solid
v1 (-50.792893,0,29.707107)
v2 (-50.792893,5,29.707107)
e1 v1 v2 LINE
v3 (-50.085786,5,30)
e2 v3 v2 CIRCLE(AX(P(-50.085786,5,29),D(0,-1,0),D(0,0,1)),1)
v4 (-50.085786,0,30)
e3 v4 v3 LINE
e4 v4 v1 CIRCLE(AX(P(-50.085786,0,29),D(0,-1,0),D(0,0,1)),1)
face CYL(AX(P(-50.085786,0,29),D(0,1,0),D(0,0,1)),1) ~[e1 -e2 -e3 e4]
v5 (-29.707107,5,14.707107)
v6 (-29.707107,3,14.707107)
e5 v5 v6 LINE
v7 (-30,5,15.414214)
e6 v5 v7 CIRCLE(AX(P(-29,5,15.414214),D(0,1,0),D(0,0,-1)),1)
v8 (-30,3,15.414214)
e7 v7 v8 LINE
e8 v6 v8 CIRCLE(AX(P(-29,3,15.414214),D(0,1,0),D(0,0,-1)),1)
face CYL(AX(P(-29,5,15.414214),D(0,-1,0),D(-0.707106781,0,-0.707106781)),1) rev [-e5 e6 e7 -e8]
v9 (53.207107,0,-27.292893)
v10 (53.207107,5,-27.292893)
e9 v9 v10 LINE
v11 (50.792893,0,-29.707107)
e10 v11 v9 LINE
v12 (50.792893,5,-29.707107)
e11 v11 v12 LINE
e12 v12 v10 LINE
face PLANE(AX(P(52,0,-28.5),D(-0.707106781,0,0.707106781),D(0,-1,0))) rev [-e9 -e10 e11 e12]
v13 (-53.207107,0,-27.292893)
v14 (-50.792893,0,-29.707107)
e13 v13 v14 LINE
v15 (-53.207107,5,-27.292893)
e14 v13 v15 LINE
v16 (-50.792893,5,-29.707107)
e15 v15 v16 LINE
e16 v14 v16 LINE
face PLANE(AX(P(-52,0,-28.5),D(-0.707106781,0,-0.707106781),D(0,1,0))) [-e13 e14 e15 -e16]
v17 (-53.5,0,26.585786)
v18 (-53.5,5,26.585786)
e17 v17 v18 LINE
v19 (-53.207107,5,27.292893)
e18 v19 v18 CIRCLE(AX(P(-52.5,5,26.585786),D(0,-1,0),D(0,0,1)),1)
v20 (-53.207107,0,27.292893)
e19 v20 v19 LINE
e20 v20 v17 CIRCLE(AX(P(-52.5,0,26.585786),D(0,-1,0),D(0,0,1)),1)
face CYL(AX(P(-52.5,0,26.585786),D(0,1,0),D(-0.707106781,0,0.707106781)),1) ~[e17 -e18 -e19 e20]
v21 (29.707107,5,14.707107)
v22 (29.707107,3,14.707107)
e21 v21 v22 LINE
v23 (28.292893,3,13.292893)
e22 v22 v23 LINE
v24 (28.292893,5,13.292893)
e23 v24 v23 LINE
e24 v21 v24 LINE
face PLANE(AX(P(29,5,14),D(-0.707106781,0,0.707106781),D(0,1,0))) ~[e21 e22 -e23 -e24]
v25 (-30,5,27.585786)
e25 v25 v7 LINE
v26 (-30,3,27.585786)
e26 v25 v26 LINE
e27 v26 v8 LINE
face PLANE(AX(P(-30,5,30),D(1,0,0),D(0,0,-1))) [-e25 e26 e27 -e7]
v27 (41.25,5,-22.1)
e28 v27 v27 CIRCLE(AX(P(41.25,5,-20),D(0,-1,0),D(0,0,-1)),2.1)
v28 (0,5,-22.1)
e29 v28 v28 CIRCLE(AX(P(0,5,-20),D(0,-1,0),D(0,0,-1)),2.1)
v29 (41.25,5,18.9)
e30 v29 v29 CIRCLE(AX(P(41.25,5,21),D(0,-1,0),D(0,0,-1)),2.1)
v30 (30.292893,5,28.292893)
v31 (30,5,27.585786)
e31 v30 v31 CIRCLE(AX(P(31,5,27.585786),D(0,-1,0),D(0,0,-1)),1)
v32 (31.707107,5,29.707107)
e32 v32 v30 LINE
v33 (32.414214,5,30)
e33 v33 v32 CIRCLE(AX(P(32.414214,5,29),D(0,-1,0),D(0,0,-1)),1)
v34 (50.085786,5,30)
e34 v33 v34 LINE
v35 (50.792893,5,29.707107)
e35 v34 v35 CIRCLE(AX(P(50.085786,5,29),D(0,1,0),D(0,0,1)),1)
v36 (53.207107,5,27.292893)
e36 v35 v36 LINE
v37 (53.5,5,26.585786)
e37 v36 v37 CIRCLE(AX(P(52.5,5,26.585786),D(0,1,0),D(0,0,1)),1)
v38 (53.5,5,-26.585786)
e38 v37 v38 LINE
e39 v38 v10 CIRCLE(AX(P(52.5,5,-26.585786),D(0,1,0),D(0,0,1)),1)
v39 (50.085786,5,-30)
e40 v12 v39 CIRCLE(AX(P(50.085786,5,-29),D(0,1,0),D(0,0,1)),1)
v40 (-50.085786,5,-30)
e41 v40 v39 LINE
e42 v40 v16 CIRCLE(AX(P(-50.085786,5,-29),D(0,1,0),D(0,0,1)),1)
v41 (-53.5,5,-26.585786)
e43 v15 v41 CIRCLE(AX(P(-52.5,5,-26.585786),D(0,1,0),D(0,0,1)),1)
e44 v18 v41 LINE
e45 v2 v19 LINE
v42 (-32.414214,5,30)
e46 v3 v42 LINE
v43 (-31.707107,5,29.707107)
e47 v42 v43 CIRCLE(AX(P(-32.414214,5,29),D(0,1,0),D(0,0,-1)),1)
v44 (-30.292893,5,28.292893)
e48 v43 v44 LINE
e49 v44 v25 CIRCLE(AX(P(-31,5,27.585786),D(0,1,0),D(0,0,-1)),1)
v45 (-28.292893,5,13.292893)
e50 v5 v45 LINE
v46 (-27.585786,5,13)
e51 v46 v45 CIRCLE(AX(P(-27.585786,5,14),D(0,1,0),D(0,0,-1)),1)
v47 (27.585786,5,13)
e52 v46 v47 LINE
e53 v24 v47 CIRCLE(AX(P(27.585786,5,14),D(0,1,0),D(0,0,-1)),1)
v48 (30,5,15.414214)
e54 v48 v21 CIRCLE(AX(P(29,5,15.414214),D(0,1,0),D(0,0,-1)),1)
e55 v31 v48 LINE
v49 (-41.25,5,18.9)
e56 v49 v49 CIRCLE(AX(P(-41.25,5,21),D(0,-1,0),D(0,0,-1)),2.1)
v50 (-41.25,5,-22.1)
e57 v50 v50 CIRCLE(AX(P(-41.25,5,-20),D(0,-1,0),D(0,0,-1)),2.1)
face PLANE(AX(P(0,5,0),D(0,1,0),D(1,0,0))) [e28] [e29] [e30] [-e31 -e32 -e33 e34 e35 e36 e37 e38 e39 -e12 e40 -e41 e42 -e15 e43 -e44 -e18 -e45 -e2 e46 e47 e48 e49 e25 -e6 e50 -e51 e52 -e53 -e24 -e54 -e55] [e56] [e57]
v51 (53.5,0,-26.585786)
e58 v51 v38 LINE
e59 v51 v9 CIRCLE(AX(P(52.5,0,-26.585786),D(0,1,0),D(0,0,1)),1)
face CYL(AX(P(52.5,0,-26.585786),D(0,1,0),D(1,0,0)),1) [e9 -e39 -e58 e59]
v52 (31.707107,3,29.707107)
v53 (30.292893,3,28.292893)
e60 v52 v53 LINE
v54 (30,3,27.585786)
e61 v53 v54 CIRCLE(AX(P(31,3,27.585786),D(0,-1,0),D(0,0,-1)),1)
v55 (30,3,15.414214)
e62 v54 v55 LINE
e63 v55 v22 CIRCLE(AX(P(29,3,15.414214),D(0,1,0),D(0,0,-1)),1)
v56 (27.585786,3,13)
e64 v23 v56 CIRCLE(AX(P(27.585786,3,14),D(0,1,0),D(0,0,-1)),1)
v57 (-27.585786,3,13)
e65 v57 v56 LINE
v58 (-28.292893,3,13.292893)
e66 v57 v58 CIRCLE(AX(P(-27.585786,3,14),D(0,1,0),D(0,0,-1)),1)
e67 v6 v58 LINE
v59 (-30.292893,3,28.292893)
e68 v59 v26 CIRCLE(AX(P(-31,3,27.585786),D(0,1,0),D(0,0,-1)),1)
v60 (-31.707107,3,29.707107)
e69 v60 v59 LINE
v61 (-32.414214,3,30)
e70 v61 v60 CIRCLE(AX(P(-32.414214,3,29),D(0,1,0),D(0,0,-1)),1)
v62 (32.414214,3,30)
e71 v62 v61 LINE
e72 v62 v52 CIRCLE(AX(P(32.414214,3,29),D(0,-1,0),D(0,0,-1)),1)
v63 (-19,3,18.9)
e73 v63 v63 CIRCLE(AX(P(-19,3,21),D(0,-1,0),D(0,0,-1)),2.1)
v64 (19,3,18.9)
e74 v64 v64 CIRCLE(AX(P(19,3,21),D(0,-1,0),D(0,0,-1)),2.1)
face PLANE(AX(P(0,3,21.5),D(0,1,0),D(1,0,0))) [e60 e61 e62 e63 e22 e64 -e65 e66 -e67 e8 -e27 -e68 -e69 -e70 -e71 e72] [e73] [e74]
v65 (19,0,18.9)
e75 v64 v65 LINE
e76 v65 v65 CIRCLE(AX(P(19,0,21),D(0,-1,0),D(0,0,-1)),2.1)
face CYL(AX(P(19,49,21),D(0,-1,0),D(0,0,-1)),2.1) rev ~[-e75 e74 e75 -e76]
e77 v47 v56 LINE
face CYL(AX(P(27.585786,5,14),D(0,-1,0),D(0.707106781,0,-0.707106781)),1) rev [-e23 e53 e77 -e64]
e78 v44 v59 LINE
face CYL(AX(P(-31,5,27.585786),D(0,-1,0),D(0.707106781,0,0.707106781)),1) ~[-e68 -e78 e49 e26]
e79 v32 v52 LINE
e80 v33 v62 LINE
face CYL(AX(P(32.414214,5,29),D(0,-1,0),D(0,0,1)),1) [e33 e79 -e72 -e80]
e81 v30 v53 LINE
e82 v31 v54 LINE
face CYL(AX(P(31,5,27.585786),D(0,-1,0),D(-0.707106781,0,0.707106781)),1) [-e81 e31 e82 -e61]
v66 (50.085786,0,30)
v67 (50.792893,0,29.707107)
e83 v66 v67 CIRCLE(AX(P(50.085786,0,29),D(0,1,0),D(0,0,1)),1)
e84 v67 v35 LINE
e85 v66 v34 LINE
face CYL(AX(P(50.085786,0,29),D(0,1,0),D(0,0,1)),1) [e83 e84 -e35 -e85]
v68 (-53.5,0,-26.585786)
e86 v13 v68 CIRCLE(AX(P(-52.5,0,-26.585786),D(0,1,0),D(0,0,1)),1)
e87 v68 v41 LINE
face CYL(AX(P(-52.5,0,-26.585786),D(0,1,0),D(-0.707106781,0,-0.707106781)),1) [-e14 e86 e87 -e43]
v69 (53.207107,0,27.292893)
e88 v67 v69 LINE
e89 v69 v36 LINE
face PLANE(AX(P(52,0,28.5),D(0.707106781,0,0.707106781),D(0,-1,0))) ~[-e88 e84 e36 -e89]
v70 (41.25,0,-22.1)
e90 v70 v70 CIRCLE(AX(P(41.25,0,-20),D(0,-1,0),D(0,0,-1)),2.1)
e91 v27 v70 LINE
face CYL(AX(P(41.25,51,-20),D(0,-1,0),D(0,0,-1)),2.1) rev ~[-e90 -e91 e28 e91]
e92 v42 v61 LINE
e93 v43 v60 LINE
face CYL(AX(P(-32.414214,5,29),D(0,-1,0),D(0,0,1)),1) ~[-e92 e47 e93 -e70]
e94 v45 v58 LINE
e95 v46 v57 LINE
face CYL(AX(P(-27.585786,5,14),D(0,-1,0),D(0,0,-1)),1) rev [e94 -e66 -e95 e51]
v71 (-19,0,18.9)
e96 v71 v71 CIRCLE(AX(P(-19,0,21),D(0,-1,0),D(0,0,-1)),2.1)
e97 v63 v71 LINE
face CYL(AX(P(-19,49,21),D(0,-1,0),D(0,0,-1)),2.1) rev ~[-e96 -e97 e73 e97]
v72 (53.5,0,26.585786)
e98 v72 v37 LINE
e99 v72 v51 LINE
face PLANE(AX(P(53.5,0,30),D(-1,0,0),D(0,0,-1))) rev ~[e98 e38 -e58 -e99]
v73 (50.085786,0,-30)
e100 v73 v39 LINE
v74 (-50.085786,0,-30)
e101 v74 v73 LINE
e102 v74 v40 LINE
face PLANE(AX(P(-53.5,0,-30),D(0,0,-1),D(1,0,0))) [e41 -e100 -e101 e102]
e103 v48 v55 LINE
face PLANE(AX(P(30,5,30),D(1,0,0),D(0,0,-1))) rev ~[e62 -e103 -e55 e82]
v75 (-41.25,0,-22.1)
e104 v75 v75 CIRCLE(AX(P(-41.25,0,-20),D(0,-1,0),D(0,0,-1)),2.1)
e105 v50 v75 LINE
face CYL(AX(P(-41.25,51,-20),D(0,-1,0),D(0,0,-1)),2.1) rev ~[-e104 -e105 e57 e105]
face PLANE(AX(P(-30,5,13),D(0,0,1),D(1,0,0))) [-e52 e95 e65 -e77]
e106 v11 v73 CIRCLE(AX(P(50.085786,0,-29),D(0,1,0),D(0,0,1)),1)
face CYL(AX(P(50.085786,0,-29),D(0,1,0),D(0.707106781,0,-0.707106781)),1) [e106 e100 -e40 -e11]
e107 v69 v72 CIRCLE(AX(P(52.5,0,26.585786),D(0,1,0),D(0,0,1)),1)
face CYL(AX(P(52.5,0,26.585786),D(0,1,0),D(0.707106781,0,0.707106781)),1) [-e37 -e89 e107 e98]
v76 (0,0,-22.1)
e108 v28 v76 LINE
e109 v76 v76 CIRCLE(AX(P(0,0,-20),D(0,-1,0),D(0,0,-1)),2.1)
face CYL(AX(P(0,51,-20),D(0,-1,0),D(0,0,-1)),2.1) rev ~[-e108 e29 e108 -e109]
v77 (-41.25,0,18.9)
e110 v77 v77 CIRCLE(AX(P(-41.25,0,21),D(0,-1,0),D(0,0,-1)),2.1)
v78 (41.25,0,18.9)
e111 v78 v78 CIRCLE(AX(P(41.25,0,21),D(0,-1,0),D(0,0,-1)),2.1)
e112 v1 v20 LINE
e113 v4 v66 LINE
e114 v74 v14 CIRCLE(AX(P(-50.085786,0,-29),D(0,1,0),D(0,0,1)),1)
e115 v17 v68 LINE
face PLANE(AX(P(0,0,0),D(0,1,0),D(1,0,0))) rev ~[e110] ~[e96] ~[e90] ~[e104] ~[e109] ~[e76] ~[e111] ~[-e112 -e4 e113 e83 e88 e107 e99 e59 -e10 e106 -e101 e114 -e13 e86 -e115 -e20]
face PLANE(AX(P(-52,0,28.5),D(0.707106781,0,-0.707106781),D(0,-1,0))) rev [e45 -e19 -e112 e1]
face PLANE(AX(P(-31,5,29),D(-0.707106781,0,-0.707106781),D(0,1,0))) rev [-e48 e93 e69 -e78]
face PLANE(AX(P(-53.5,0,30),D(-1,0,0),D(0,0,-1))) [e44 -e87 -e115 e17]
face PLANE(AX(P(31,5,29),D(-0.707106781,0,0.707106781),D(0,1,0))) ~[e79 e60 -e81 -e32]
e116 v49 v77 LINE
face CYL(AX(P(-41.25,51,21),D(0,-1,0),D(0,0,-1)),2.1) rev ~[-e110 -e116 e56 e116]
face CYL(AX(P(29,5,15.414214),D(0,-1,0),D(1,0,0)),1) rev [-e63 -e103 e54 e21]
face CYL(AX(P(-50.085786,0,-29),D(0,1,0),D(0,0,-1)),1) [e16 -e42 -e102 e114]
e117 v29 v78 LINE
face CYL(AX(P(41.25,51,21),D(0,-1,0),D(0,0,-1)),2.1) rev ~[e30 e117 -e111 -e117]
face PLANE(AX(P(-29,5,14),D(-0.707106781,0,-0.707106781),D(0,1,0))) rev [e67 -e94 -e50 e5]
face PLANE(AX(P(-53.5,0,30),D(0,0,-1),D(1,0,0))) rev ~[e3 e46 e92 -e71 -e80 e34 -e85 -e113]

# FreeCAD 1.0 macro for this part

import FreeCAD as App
import Part
import Sketcher

V = App.Vector


def edges_at(feature, points):
    """Names of the edges that pass closest to the given points."""
    edges = feature.Shape.Edges
    near = lambda p: min(range(len(edges)), key=lambda i: edges[i].distToShape(Part.Vertex(*p))[0])
    return sorted({f"Edge{near(p) + 1}" for p in points})


def add_polygon(sketch, points):
    """Adds a closed chain of lines whose ends are joined by coincident constraints."""
    first, n = sketch.GeometryCount, len(points)
    for a, b in zip(points, points[1:] + points[:1]):
        sketch.addGeometry(Part.LineSegment(App.Vector(*a, 0), App.Vector(*b, 0)), False)
    for i in range(n):
        sketch.addConstraint(Sketcher.Constraint("Coincident", first + i, 2, first + (i + 1) % n, 1))

doc = App.newDocument("Part")
body = doc.addObject("PartDesign::Body", "Body")

# Sketch on XZ plane
sketch1 = doc.addObject("Sketcher::SketchObject", "Sketch")
body.addObject(sketch1)
sketch1.AttachmentSupport = (doc.XZ_Plane, [""])
sketch1.MapMode = "FlatFace"
add_polygon(sketch1, [(-54, -30), (-54, 30), (54, 30), (54, -30)])  # lines 0-3
sketch1.addConstraint([
    Sketcher.Constraint("Vertical", 0),
    Sketcher.Constraint("Horizontal", 1),
    Sketcher.Constraint("Vertical", 2),
    Sketcher.Constraint("Horizontal", 3),
    Sketcher.Constraint("Symmetric", 0, 2, 2, 2, -1, 1),
    Sketcher.Constraint("DistanceX", 1, 1, 1, 2, 107.0),
    Sketcher.Constraint("DistanceY", 0, 1, 0, 2, 60.0),
])
pad1 = doc.addObject("PartDesign::Pad", "Pad")
body.addObject(pad1)
pad1.Profile = sketch1
pad1.Length = 5
pad1.Reversed = True

# Sketch on XZ plane
sketch2 = doc.addObject("Sketcher::SketchObject", "Sketch001")
body.addObject(sketch2)
sketch2.AttachmentSupport = (doc.XZ_Plane, [""])
sketch2.MapMode = "FlatFace"
sketch2.AttachmentOffset = App.Placement(V(0, 0, -5), App.Rotation())
add_polygon(sketch2, [(-30, 13), (-30, 30), (30, 30), (30, 13)])  # lines 0-3
sketch2.addConstraint([
    Sketcher.Constraint("Vertical", 0),
    Sketcher.Constraint("Horizontal", 1),
    Sketcher.Constraint("Vertical", 2),
    Sketcher.Constraint("Horizontal", 3),
    Sketcher.Constraint("DistanceX", 1, 1, 1, 2, 60.0),
    Sketcher.Constraint("DistanceY", 0, 1, 0, 2, 17.0),
    Sketcher.Constraint("DistanceX", 0, 2, -1, 1, 30.0),
    Sketcher.Constraint("DistanceY", -1, 1, 0, 2, 30.0),
])
pocket1 = doc.addObject("PartDesign::Pocket", "Pocket")
body.addObject(pocket1)
pocket1.Profile = sketch2
pocket1.Length = 2
pocket1.Reversed = True
doc.recompute()

chamfer = doc.addObject("PartDesign::Chamfer", "Chamfer")
body.addObject(chamfer)
chamfer.Base = (pocket1, edges_at(pocket1, [
    (30, 4, 13),
    (30, 4, 30),
    (-30, 4, 30),
    (-30, 4, 13),
]))
chamfer.Size = 2
doc.recompute()

chamfer2 = doc.addObject("PartDesign::Chamfer", "Chamfer001")
body.addObject(chamfer2)
chamfer2.Base = (chamfer, edges_at(chamfer, [
    (53.5, 2.5, 30),
    (-53.5, 2.5, 30),
    (-53.5, 2.5, -30),
    (53.5, 2.5, -30),
]))
chamfer2.Size = 3
doc.recompute()

fillet = doc.addObject("PartDesign::Fillet", "Fillet")
body.addObject(fillet)
fillet.Base = (chamfer2, edges_at(chamfer2, [
    (30, 4, 15),
    (30, 4, 28),
    (-32, 4, 30),
    (32, 4, 30),
    (-28, 4, 13),
    (28, 4, 13),
    (-30, 4, 15),
    (-30, 4, 28),
    (-53.5, 2.5, 27),
    (-53.5, 2.5, -27),
    (50.5, 2.5, -30),
    (-50.5, 2.5, -30),
    (50.5, 2.5, 30),
    (-50.5, 2.5, 30),
    (53.5, 2.5, 27),
    (53.5, 2.5, -27),
]))
fillet.Radius = 1

# Sketch on XZ plane
sketch3 = doc.addObject("Sketcher::SketchObject", "Sketch002")
body.addObject(sketch3)
sketch3.AttachmentSupport = (doc.XZ_Plane, [""])
sketch3.MapMode = "FlatFace"
sketch3.AttachmentOffset = App.Placement(V(0, 0, -5), App.Rotation())
sketch3.addGeometry([
    Part.Circle(V(-41.2, 21, 0), V(0, 0, 1), 2.1),  # 0
    Part.Circle(V(-41.2, -20, 0), V(0, 0, 1), 2.1),  # 1
    Part.Circle(V(0, -20, 0), V(0, 0, 1), 2.1),  # 2
    Part.Circle(V(41.2, -20, 0), V(0, 0, 1), 2.1),  # 3
    Part.Circle(V(41.2, 21, 0), V(0, 0, 1), 2.1),  # 4
], False)
sketch3.addConstraint([
    Sketcher.Constraint("Equal", 0, 1),
    Sketcher.Constraint("Equal", 1, 2),
    Sketcher.Constraint("Equal", 2, 3),
    Sketcher.Constraint("Equal", 3, 4),
    Sketcher.Constraint("Symmetric", 1, 3, 3, 3, -2),
    Sketcher.Constraint("Symmetric", 0, 3, 4, 3, -2),
    Sketcher.Constraint("PointOnObject", 2, 3, -2),
    Sketcher.Constraint("Horizontal", 1, 3, 2, 3),
    Sketcher.Constraint("Vertical", 0, 3, 1, 3),
    Sketcher.Constraint("Diameter", 0, 4.2),
    Sketcher.Constraint("DistanceY", -1, 1, 0, 3, 21.0),
    Sketcher.Constraint("DistanceY", 1, 3, -1, 1, 20.0),
    Sketcher.Constraint("DistanceX", 1, 3, 3, 3, 82.5),
])
doc.recompute()
hole = doc.addObject("PartDesign::Hole", "Hole")
body.addObject(hole)
hole.Profile = sketch3
hole.ThreadType = "None"
hole.Diameter = 4.2
hole.DepthType = "Dimension"
hole.Depth = 46
hole.DrillPoint = "Angled"
hole.DrillPointAngle = 118
hole.Reversed = True

# Sketch on XZ plane
sketch4 = doc.addObject("Sketcher::SketchObject", "Sketch003")
body.addObject(sketch4)
sketch4.AttachmentSupport = (doc.XZ_Plane, [""])
sketch4.MapMode = "FlatFace"
sketch4.AttachmentOffset = App.Placement(V(0, 0, -3), App.Rotation())
sketch4.addGeometry([
    Part.Circle(V(-19, 21, 0), V(0, 0, 1), 2.1),
    Part.Circle(V(19, 21, 0), V(0, 0, 1), 2.1),
], False)
sketch4.addConstraint([
    Sketcher.Constraint("Equal", 0, 1),
    Sketcher.Constraint("Symmetric", 0, 3, 1, 3, -2),
    Sketcher.Constraint("Diameter", 0, 4.2),
    Sketcher.Constraint("DistanceX", 0, 3, -1, 1, 19.0),
    Sketcher.Constraint("DistanceY", -1, 1, 0, 3, 21.0),
])
doc.recompute()
hole2 = doc.addObject("PartDesign::Hole", "Hole001")
body.addObject(hole2)
hole2.Profile = sketch4
hole2.ThreadType = "None"
hole2.Diameter = 4.2
hole2.DepthType = "Dimension"
hole2.Depth = 46
hole2.DrillPoint = "Angled"
hole2.DrillPointAngle = 118
hole2.Reversed = True

doc.recompute()
